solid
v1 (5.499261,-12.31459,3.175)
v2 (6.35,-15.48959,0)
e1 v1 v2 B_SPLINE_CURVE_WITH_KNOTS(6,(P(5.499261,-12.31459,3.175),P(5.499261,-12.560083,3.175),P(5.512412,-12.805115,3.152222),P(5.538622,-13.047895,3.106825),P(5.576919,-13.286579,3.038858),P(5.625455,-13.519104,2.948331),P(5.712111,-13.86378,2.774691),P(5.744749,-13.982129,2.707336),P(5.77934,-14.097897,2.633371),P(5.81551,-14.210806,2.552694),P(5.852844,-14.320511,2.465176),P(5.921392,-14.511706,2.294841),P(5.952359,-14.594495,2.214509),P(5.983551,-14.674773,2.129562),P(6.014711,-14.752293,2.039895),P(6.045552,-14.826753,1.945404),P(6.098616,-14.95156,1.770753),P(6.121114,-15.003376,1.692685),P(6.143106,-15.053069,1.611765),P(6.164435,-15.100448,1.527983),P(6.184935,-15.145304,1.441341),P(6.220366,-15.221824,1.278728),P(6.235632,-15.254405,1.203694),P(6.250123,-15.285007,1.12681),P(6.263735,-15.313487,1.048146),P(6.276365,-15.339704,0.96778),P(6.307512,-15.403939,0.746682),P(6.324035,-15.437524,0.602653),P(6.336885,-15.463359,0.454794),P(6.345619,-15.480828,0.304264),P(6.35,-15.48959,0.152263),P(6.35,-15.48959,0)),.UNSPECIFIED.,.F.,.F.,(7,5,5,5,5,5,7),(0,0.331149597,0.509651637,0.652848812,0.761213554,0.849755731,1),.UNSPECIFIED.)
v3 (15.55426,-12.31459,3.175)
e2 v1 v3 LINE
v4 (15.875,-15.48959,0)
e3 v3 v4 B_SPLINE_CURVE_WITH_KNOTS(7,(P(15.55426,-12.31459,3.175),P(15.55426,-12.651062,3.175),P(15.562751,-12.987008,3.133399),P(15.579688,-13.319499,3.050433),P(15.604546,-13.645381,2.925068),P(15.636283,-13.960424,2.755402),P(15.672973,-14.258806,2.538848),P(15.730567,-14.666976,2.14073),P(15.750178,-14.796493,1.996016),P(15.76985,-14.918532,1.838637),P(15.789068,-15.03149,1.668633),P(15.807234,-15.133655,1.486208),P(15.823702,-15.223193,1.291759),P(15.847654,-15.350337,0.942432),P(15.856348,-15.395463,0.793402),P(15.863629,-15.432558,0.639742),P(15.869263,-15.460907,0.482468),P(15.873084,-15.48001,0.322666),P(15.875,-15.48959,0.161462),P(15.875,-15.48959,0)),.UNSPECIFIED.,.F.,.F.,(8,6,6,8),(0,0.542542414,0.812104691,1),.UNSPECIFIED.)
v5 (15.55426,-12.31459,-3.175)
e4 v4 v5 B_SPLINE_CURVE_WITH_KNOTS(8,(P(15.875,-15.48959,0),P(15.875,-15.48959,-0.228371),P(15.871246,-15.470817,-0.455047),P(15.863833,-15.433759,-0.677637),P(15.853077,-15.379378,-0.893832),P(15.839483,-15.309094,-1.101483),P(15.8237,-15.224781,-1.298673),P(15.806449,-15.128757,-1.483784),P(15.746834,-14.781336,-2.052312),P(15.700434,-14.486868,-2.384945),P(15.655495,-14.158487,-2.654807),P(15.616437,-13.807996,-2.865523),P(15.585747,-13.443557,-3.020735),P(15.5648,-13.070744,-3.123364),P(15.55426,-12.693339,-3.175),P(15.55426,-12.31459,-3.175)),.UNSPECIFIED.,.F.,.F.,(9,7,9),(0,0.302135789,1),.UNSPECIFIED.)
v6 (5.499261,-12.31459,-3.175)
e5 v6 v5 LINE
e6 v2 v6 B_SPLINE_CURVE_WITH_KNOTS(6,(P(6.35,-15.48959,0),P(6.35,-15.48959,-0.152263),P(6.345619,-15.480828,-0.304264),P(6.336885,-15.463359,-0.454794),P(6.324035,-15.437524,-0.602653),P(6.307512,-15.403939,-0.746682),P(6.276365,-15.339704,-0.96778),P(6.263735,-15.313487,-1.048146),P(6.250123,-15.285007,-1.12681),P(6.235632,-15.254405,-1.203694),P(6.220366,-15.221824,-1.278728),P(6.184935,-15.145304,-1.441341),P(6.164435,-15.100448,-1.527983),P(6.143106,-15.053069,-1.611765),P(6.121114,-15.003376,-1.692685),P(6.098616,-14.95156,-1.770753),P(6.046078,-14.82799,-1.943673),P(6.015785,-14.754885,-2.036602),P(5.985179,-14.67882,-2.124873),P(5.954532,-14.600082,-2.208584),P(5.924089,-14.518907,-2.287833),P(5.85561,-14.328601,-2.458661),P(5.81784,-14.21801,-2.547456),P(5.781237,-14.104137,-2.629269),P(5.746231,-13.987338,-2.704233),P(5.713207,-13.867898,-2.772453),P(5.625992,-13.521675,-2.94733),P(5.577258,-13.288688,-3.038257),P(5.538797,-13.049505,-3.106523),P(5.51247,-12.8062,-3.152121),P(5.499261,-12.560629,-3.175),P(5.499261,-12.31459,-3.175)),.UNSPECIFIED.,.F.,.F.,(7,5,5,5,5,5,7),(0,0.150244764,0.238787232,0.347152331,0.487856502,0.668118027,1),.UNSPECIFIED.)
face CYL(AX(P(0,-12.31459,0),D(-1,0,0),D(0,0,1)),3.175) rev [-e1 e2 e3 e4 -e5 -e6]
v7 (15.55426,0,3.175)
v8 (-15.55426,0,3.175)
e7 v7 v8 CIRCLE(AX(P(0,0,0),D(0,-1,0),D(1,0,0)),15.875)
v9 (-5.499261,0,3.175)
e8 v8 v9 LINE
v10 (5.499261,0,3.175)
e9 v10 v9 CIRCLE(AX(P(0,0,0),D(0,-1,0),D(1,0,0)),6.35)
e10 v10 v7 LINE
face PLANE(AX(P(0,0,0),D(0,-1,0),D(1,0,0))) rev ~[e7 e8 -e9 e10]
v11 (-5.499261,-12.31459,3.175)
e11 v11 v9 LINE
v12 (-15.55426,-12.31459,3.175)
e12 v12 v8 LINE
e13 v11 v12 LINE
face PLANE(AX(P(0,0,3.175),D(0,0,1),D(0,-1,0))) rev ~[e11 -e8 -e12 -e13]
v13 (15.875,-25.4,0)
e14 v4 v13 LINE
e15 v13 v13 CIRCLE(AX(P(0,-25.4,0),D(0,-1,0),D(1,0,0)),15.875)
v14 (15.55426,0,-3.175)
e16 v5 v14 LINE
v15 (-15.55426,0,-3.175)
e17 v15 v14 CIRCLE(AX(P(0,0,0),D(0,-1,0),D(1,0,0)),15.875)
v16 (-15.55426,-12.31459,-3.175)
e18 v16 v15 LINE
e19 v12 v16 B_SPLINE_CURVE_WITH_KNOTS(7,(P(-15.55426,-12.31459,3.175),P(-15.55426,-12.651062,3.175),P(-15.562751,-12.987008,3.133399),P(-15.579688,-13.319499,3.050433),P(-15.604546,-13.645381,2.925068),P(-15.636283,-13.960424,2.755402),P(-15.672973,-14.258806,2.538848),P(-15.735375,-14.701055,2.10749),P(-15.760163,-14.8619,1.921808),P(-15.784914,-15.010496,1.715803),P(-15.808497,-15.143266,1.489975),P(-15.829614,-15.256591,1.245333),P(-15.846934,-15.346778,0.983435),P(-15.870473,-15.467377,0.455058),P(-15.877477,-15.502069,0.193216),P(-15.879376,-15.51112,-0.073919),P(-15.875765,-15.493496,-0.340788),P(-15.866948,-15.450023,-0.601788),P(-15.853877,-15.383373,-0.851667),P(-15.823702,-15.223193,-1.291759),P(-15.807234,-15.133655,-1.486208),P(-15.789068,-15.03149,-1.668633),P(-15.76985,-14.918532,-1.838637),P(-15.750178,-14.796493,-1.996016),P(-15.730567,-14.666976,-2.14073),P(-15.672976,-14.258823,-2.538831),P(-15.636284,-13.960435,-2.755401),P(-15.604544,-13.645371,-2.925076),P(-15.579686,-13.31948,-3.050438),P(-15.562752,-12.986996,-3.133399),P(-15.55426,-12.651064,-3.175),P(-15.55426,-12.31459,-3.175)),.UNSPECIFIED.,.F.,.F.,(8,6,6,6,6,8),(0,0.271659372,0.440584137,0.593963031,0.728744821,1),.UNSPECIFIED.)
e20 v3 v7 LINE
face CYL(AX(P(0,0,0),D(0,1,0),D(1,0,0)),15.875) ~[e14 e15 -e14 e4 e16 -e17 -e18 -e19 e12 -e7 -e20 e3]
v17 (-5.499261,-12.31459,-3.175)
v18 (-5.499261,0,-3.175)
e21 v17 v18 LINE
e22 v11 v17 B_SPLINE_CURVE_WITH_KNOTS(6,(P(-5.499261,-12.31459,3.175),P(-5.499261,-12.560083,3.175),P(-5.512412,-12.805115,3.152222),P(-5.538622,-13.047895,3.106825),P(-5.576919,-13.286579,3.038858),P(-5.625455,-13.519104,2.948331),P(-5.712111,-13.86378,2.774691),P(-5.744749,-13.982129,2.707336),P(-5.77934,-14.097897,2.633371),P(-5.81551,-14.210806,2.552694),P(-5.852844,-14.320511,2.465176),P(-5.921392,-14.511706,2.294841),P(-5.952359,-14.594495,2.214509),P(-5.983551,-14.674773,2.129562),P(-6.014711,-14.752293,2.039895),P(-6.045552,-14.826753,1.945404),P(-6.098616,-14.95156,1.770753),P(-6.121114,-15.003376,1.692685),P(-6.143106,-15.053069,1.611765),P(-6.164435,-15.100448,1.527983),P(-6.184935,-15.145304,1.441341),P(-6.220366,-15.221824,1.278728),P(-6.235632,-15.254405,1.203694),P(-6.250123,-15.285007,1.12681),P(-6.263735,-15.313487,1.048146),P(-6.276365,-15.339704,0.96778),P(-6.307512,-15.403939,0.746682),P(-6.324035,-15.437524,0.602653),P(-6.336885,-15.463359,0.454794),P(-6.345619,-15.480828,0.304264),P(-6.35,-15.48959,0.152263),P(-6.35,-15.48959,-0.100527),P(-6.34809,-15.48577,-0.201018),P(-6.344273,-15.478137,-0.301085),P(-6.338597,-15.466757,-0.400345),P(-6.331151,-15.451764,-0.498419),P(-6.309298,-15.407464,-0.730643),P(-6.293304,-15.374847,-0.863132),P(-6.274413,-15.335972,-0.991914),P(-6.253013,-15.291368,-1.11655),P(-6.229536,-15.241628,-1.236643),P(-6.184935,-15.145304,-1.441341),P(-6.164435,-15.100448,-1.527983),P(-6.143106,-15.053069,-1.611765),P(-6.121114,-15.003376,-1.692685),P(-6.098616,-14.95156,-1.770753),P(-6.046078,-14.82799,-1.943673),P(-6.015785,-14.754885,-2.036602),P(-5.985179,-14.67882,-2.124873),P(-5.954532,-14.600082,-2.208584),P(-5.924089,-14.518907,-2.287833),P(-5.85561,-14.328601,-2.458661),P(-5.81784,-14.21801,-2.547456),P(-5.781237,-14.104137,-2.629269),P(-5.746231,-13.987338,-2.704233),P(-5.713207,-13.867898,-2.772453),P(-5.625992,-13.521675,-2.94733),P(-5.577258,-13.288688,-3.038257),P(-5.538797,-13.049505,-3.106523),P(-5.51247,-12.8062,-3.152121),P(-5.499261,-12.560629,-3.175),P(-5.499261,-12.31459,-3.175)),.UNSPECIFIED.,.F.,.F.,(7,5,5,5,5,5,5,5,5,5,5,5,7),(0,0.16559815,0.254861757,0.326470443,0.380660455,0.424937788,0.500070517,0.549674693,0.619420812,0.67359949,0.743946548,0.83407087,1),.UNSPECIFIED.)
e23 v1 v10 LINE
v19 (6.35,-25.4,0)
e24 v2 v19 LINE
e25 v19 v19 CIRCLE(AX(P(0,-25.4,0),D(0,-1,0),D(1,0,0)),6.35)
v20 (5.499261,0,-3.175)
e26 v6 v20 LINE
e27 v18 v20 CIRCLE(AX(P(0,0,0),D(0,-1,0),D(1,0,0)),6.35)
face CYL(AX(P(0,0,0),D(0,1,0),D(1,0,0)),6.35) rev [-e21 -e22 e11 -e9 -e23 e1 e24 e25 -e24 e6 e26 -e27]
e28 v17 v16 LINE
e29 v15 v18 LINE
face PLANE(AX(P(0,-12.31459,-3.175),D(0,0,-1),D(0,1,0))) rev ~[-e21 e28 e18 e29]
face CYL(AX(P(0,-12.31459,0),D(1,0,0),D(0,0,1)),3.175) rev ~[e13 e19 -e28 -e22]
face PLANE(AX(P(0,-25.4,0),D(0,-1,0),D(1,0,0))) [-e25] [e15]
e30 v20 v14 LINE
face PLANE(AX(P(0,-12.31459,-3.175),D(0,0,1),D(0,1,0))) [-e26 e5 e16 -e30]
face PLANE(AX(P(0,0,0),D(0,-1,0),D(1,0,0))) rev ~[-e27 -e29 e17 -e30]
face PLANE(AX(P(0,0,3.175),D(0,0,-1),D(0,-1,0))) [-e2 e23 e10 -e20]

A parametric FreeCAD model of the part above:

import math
import FreeCAD as App
import Part
import Sketcher

V = App.Vector
Q = App.Units.Quantity

doc = App.newDocument("Part")
body = doc.addObject("PartDesign::Body", "Body")

sketch1 = body.newObject("Sketcher::SketchObject", "Sketch")
sketch1.AttachmentSupport = (doc.getObject("XZ_Plane"), [""])
sketch1.MapMode = "FlatFace"
sketch1.addGeometry([
    Part.Circle(V(0, 0, 0), V(0, 0, 1), 15.875),
    Part.Circle(V(0, 0, 0), V(0, 0, 1), 6.35),
], False)
sketch1.addConstraint([
    Sketcher.Constraint("Coincident", 0, 3, -1, 1),
    Sketcher.Constraint("Coincident", 1, 3, -1, 1),
    Sketcher.Constraint("Diameter", 1, Q("0.5 in")),
    Sketcher.Constraint("Diameter", 0, Q("1.25 in")),
])
pad1 = body.newObject("PartDesign::Pad", "Pad")
pad1.Profile = sketch1
pad1.Length = Q("1 in")

sketch2 = body.newObject("Sketcher::SketchObject", "Sketch001")
sketch2.AttachmentSupport = (doc.getObject("YZ_Plane"), [""])
sketch2.MapMode = "FlatFace"
sketch2.addGeometry(Part.Circle(V(0, 0, 0), V(0, 0, 1), 3.175), False)
sketch2.addConstraint([
    Sketcher.Constraint("Coincident", 0, 3, -1, 1),
    Sketcher.Constraint("Diameter", 0, Q("0.25 in")),
])
pocket1 = body.newObject("PartDesign::Pocket", "Pocket")
pocket1.Profile = sketch2
pocket1.Length = Q("1 in")

sketch3 = body.newObject("Sketcher::SketchObject", "Sketch002")
sketch3.AttachmentSupport = (doc.getObject("YZ_Plane"), [""])
sketch3.MapMode = "FlatFace"
sketch3.addGeometry([
    Part.LineSegment(V(0, 3.175, 0), V(-12.31459, 3.175, 0)),
    Part.ArcOfCircle(Part.Circle(V(-12.31459, 0, 0), V(0, 0, 1), 3.175), math.radians(90), math.radians(270)),
    Part.LineSegment(V(-12.31459, -3.175, 0), V(0, -3.175, 0)),
    Part.LineSegment(V(0, -3.175, 0), V(0, 3.175, 0)),
], False)
sketch3.addConstraint([
    Sketcher.Constraint("Tangent", 0, 2, 1, 1),
    Sketcher.Constraint("Tangent", 1, 2, 2, 1),
    Sketcher.Constraint("Coincident", 2, 2, 3, 1),
    Sketcher.Constraint("Coincident", 3, 2, 0, 1),
    Sketcher.Constraint("Horizontal", 0),
    Sketcher.Constraint("Horizontal", 2),
    Sketcher.Constraint("Vertical", 3),
    Sketcher.Constraint("Symmetric", 2, 2, 3, 2, -1, 1),
    Sketcher.Constraint("Radius", 1, Q("0.125 in")),
    Sketcher.Constraint("DistanceX", 0, 2, 0, 1, 12.31459),
])
pocket2 = body.newObject("PartDesign::Pocket", "Pocket001")
pocket2.Profile = sketch3
pocket2.Length = Q("1 in")
pocket2.Reversed = True

sketch4 = body.newObject("Sketcher::SketchObject", "Sketch003")
sketch4.AttachmentSupport = (doc.getObject("YZ_Plane"), [""])
sketch4.MapMode = "FlatFace"
sketch4.addGeometry([
    Part.LineSegment(V(0, 3.175, 0), V(-12.31459, 3.175, 0)),
    Part.ArcOfCircle(Part.Circle(V(-12.31459, 0, 0), V(0, 0, 1), 3.175), math.radians(90), math.radians(270)),
    Part.LineSegment(V(-12.31459, -3.175, 0), V(0, -3.175, 0)),
    Part.LineSegment(V(0, -3.175, 0), V(0, 3.175, 0)),
], False)
sketch4.addConstraint([
    Sketcher.Constraint("Tangent", 0, 2, 1, 1),
    Sketcher.Constraint("Tangent", 1, 2, 2, 1),
    Sketcher.Constraint("Coincident", 2, 2, 3, 1),
    Sketcher.Constraint("Coincident", 3, 2, 0, 1),
    Sketcher.Constraint("Horizontal", 0),
    Sketcher.Constraint("Horizontal", 2),
    Sketcher.Constraint("Vertical", 3),
    Sketcher.Constraint("Symmetric", 2, 2, 3, 2, -1, 1),
    Sketcher.Constraint("Radius", 1, Q("0.125 in")),
    Sketcher.Constraint("DistanceX", 0, 2, 0, 1, 12.31459),
])
pocket3 = body.newObject("PartDesign::Pocket", "Pocket002")
pocket3.Profile = sketch4
pocket3.Length = Q("1 in")

doc.recompute()
